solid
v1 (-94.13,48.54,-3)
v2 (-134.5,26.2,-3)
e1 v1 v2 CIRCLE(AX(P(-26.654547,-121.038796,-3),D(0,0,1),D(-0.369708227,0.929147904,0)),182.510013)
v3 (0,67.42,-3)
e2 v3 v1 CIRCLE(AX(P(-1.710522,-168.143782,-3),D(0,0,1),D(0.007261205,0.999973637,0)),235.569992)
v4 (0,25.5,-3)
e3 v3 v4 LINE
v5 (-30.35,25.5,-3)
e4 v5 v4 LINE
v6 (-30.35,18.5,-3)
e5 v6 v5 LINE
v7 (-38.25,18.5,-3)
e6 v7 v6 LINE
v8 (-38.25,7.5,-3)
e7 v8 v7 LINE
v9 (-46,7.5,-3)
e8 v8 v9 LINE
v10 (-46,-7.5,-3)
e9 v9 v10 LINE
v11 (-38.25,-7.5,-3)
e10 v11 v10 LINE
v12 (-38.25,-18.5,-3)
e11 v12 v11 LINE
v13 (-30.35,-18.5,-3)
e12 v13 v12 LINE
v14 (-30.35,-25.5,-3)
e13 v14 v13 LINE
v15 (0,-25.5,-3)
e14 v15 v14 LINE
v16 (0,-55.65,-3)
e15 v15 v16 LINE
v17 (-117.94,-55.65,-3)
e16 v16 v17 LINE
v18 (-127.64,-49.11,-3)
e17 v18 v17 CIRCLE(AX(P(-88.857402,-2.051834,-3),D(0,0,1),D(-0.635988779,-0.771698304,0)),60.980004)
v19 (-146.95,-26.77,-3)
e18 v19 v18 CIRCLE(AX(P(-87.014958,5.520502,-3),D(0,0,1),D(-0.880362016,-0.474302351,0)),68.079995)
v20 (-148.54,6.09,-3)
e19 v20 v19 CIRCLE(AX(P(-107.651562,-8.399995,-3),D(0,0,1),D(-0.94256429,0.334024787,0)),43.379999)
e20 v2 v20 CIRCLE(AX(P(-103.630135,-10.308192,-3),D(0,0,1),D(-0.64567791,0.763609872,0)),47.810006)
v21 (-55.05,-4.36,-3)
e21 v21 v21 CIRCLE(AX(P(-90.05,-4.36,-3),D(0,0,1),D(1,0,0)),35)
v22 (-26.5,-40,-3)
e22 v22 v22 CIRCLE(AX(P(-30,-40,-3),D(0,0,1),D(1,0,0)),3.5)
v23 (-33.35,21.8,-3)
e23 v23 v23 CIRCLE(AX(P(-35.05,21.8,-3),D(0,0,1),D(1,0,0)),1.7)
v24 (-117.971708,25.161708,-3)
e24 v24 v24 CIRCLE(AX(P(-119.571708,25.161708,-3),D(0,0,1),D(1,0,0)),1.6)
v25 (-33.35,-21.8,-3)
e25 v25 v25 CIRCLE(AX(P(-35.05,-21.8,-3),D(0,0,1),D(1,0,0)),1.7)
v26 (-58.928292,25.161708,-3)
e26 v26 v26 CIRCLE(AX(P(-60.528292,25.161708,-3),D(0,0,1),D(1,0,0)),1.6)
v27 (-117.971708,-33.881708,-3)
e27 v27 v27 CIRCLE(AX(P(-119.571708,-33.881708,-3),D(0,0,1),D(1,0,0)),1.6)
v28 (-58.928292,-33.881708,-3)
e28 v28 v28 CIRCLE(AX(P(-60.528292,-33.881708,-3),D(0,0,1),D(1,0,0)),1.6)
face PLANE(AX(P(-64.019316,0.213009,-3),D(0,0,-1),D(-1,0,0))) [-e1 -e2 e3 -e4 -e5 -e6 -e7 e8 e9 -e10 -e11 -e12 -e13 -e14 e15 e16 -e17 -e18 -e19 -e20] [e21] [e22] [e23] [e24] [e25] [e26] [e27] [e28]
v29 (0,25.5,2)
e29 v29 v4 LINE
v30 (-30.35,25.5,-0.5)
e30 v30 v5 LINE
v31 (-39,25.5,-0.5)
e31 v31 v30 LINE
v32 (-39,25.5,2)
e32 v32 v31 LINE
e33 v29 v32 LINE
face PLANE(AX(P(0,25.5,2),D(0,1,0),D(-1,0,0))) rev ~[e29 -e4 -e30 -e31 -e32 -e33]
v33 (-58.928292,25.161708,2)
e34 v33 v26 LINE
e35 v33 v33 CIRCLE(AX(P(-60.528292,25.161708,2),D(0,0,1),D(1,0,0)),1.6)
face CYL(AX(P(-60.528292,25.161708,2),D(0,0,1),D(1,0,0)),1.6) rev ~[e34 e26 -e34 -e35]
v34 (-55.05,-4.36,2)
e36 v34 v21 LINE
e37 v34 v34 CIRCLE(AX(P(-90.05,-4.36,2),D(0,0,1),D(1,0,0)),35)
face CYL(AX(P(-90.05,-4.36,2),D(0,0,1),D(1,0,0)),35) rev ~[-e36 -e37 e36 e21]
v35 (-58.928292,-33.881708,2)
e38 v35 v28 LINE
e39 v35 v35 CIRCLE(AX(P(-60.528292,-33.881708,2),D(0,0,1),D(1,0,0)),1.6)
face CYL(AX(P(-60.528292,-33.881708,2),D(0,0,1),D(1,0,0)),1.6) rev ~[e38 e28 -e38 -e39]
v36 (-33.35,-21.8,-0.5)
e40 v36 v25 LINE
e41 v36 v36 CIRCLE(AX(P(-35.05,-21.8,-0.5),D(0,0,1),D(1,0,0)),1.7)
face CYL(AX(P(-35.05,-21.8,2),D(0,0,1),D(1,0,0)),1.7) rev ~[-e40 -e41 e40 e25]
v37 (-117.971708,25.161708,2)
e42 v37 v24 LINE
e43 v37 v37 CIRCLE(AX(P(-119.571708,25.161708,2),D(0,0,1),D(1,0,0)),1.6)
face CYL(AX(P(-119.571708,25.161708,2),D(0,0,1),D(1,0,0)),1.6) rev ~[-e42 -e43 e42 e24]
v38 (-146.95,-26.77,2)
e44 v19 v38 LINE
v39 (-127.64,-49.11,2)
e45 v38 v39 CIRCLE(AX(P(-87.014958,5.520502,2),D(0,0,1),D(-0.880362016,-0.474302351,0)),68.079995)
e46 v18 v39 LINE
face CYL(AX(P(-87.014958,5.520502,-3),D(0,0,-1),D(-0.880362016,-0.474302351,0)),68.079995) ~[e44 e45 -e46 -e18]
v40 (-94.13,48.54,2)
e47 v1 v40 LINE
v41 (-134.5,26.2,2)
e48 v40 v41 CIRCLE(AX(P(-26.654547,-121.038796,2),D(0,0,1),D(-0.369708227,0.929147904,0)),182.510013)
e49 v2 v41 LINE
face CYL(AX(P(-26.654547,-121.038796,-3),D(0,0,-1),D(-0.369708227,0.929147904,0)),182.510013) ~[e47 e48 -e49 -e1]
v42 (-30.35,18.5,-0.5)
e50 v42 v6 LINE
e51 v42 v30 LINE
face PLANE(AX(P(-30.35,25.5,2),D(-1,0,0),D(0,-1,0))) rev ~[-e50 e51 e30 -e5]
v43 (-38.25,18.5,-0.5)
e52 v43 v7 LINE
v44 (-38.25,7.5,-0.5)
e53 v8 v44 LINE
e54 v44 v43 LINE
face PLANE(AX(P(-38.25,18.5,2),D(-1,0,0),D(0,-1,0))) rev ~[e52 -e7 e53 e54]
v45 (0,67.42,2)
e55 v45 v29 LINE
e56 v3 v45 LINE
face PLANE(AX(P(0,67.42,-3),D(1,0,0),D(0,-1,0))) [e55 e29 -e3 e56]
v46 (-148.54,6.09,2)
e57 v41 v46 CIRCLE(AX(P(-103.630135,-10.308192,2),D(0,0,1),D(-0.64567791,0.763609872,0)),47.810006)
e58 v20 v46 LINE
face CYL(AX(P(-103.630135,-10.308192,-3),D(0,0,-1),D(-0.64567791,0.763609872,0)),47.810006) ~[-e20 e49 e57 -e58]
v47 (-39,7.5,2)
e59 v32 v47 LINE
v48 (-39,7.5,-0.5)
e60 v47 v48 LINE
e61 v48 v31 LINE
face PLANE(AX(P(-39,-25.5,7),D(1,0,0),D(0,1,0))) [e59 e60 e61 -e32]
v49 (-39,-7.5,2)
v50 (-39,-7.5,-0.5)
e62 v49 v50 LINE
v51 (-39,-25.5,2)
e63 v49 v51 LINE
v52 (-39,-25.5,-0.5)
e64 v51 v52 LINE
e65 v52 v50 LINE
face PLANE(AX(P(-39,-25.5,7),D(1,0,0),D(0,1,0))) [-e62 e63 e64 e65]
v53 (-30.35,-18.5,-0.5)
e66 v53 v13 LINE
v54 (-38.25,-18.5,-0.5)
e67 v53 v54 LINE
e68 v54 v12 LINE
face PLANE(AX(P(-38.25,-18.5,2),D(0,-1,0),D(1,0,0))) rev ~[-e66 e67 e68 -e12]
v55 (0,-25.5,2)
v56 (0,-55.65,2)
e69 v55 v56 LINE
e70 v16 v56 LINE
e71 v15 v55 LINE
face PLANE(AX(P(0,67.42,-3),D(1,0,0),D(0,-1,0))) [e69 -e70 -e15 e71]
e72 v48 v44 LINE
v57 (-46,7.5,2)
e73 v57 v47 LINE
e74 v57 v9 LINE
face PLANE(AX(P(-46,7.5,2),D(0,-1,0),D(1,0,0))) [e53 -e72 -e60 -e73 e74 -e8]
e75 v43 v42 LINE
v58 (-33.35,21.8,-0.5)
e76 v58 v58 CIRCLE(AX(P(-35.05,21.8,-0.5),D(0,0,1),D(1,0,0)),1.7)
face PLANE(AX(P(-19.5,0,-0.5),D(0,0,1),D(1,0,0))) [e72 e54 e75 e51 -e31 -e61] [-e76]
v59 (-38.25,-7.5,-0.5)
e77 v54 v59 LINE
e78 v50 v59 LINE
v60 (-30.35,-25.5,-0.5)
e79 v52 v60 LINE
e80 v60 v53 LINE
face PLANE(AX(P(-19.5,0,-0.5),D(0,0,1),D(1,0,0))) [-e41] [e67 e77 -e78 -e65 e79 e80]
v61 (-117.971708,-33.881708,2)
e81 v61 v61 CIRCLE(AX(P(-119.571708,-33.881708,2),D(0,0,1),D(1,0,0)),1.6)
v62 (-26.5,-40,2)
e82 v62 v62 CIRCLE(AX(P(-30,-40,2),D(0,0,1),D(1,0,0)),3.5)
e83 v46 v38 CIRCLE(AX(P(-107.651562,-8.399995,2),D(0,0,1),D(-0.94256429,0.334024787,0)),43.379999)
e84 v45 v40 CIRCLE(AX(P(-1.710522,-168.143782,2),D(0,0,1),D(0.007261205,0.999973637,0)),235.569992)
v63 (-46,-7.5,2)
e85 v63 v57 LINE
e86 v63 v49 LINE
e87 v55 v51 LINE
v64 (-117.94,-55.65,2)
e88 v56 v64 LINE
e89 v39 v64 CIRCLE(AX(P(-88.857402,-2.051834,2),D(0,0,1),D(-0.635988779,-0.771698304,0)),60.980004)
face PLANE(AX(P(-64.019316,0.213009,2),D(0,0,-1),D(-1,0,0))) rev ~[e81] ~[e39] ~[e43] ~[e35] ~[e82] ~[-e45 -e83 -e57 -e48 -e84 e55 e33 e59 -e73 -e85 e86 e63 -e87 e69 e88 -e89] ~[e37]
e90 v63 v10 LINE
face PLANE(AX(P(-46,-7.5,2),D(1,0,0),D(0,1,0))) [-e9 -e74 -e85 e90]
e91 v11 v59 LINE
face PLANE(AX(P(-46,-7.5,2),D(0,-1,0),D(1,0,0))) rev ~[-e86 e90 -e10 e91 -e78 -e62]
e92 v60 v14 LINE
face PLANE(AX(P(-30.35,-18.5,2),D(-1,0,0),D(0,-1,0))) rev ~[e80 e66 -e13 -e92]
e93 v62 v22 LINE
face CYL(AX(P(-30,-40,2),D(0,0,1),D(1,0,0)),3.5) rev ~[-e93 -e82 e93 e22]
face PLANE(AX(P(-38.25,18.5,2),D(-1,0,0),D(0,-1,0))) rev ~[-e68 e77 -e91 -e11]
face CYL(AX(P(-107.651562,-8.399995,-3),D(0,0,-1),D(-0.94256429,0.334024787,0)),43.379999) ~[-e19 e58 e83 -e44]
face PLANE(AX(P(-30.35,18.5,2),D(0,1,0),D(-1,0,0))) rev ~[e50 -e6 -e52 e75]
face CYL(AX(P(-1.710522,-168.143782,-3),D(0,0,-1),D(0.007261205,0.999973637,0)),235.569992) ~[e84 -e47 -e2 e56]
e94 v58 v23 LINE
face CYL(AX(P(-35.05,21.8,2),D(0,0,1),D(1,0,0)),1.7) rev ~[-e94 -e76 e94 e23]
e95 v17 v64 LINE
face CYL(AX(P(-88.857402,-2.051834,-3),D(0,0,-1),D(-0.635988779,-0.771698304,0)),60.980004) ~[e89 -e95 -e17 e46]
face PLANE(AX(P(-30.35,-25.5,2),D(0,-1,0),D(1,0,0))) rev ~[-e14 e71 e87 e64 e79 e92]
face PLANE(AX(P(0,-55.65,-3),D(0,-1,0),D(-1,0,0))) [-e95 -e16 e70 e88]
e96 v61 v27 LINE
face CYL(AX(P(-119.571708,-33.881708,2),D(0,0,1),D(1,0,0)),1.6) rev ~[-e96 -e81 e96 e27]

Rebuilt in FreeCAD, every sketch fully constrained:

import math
import FreeCAD as App
import Part
import Sketcher

V = App.Vector

doc = App.newDocument("Part")
body = doc.addObject("PartDesign::Body", "Body")

# Sketch on XY plane
sketch1 = body.newObject("Sketcher::SketchObject", "Sketch")
sketch1.AttachmentSupport = (doc.getObject("XY_Plane"), [""])
sketch1.MapMode = "FlatFace"
sketch1.addGeometry([
    Part.LineSegment(V(0, -56, 0), V(0, 67, 0)),  # 0
    Part.ArcOfCircle(Part.Circle(V(-2, -168, 0), V(0, 0, 1), 236), math.radians(90), math.radians(113)),  # 1
    Part.ArcOfCircle(Part.Circle(V(-27, -121, 0), V(0, 0, 1), 183), math.radians(111.7), math.radians(126.22)),  # 2
    Part.ArcOfCircle(Part.Circle(V(-104, -10, 0), V(0, 0, 1), 48), math.radians(130), math.radians(160)),  # 3
    Part.ArcOfCircle(Part.Circle(V(-108, -8, 0), V(0, 0, 1), 43), math.radians(160), math.radians(205)),  # 4
    Part.ArcOfCircle(Part.Circle(V(-87, 6, 0), V(0, 0, 1), 68), math.radians(-152), math.radians(-127)),  # 5
    Part.ArcOfCircle(Part.Circle(V(-89, -2, 0), V(0, 0, 1), 61), math.radians(-129.49), math.radians(-118.48)),  # 6
    Part.LineSegment(V(-118, -56, 0), V(0, -56, 0)),  # 7
], False)
sketch1.addConstraint([
    Sketcher.Constraint("Coincident", 0, 2, 1, 1),
    Sketcher.Constraint("Coincident", 1, 2, 2, 1),
    Sketcher.Constraint("Coincident", 2, 2, 3, 1),
    Sketcher.Constraint("Coincident", 3, 2, 4, 1),
    Sketcher.Constraint("Coincident", 4, 2, 5, 1),
    Sketcher.Constraint("Coincident", 5, 2, 6, 1),
    Sketcher.Constraint("Coincident", 6, 2, 7, 1),
    Sketcher.Constraint("Coincident", 7, 2, 0, 1),
    Sketcher.Constraint("Vertical", 0),
    Sketcher.Constraint("Horizontal", 7),
    Sketcher.Constraint("PointOnObject", 0, 2, -2),
    Sketcher.Constraint("Radius", 4, 43.379999),
    Sketcher.Constraint("DistanceX", 7, 1, 7, 2, 117.94),
    Sketcher.Constraint("DistanceY", 0, 1, 0, 2, 123.07),
    Sketcher.Constraint("DistanceX", 2, 2, -1, 1, 134.5),
    Sketcher.Constraint("DistanceY", -1, 1, 2, 2, 26.2),
    Sketcher.Constraint("DistanceX", 3, 2, 5, 2, 20.9),
    Sketcher.Constraint("DistanceY", 5, 2, 3, 2, 55.2),
    Sketcher.Constraint("DistanceX", 5, 2, 6, 2, 9.7),
    Sketcher.Constraint("DistanceY", -1, 1, 0, 2, 67.42),
    Sketcher.Constraint("DistanceX", 1, 2, -1, 1, 94.13),
    Sketcher.Constraint("DistanceY", -1, 1, 1, 2, 48.54),
    Sketcher.Constraint("DistanceY", -1, 1, 3, 2, 6.09),
    Sketcher.Constraint("DistanceX", 4, 2, -1, 1, 146.95),
    Sketcher.Constraint("DistanceY", 4, 2, -1, 1, 26.77),
    Sketcher.Constraint("Radius", 1, 235.569992),
    Sketcher.Constraint("Radius", 2, 182.510013),
    Sketcher.Constraint("Radius", 3, 47.810006),
    Sketcher.Constraint("Radius", 5, 68.079995),
    Sketcher.Constraint("Radius", 6, 60.980004),
])
pad1 = body.newObject("PartDesign::Pad", "Pad")
pad1.Profile = sketch1
pad1.Length = 5

# Sketch on XY plane
sketch2 = body.newObject("Sketcher::SketchObject", "Sketch001")
sketch2.AttachmentSupport = (doc.getObject("XY_Plane"), [""])
sketch2.MapMode = "FlatFace"
sketch2.AttachmentOffset = App.Placement(V(0, 0, 5), App.Rotation())
sketch2.addGeometry([
    Part.Circle(V(-90, -4.4, 0), V(0, 0, 1), 35),  # 0
    Part.Circle(V(-119.6, 25.2, 0), V(0, 0, 1), 1.6),  # 1
    Part.Circle(V(-119.6, -33.9, 0), V(0, 0, 1), 1.6),  # 2
    Part.Circle(V(-60.5, -33.9, 0), V(0, 0, 1), 1.6),  # 3
    Part.Circle(V(-60.5, 25.2, 0), V(0, 0, 1), 1.6),  # 4
], False)
sketch2.addConstraint([
    Sketcher.Constraint("Equal", 1, 2),
    Sketcher.Constraint("Equal", 2, 3),
    Sketcher.Constraint("Equal", 3, 4),
    Sketcher.Constraint("Horizontal", 2, 3, 3, 3),
    Sketcher.Constraint("Horizontal", 1, 3, 4, 3),
    Sketcher.Constraint("Vertical", 1, 3, 2, 3),
    Sketcher.Constraint("Vertical", 3, 3, 4, 3),
    Sketcher.Constraint("Diameter", 0, 70.0),
    Sketcher.Constraint("Diameter", 1, 3.2),
    Sketcher.Constraint("DistanceX", 0, 3, -1, 1, 90.05),
    Sketcher.Constraint("DistanceY", 0, 3, -1, 1, 4.36),
    Sketcher.Constraint("DistanceX", 1, 3, -1, 1, 119.571708),
    Sketcher.Constraint("DistanceY", -1, 1, 1, 3, 25.161708),
    Sketcher.Constraint("DistanceY", 2, 3, -1, 1, 33.881708),
    Sketcher.Constraint("DistanceX", 3, 3, -1, 1, 60.528292),
])
pocket1 = body.newObject("PartDesign::Pocket", "Pocket")
pocket1.Profile = sketch2
pocket1.Type = "ThroughAll"

# Sketch on XY plane
sketch3 = body.newObject("Sketcher::SketchObject", "Sketch002")
sketch3.AttachmentSupport = (doc.getObject("XY_Plane"), [""])
sketch3.MapMode = "FlatFace"
sketch3.AttachmentOffset = App.Placement(V(0, 0, 5), App.Rotation())
sketch3.addGeometry([
    Part.Circle(V(-30, -40, 0), V(0, 0, 1), 3.5),  # 0
    Part.Circle(V(-35, 21.8, 0), V(0, 0, 1), 1.7),  # 1
    Part.Circle(V(-35, -21.8, 0), V(0, 0, 1), 1.7),  # 2
    Part.LineSegment(V(0, 25.5, 0), V(-30.4, 25.5, 0)),  # 3
    Part.LineSegment(V(-30.4, 25.5, 0), V(-30.4, 18.5, 0)),  # 4
    Part.LineSegment(V(-30.4, 18.5, 0), V(-38.2, 18.5, 0)),  # 5
    Part.LineSegment(V(-38.2, 18.5, 0), V(-38.2, -18.5, 0)),  # 6
    Part.LineSegment(V(-38.2, -18.5, 0), V(-30.4, -18.5, 0)),  # 7
    Part.LineSegment(V(-30.4, -18.5, 0), V(-30.4, -25.5, 0)),  # 8
    Part.LineSegment(V(-30.4, -25.5, 0), V(0, -25.5, 0)),  # 9
    Part.LineSegment(V(0, -25.5, 0), V(0, 25.5, 0)),  # 10
], False)
sketch3.addConstraint([
    Sketcher.Constraint("Coincident", 3, 2, 4, 1),
    Sketcher.Constraint("Coincident", 4, 2, 5, 1),
    Sketcher.Constraint("Coincident", 5, 2, 6, 1),
    Sketcher.Constraint("Coincident", 6, 2, 7, 1),
    Sketcher.Constraint("Coincident", 7, 2, 8, 1),
    Sketcher.Constraint("Coincident", 8, 2, 9, 1),
    Sketcher.Constraint("Coincident", 9, 2, 10, 1),
    Sketcher.Constraint("Coincident", 10, 2, 3, 1),
    Sketcher.Constraint("Horizontal", 3),
    Sketcher.Constraint("Vertical", 4),
    Sketcher.Constraint("Horizontal", 5),
    Sketcher.Constraint("Vertical", 6),
    Sketcher.Constraint("Horizontal", 7),
    Sketcher.Constraint("Vertical", 8),
    Sketcher.Constraint("Horizontal", 9),
    Sketcher.Constraint("Vertical", 10),
    Sketcher.Constraint("Equal", 1, 2),
    Sketcher.Constraint("Symmetric", 9, 2, 10, 2, -1, 1),
    Sketcher.Constraint("Symmetric", 1, 3, 2, 3, -1),
    Sketcher.Constraint("Symmetric", 4, 2, 7, 2, -1),
    Sketcher.Constraint("Diameter", 0, 7.0),
    Sketcher.Constraint("Diameter", 1, 3.4),
    Sketcher.Constraint("DistanceY", 4, 2, 4, 1, 7.0),
    Sketcher.Constraint("DistanceY", 6, 2, 6, 1, 37.0),
    Sketcher.Constraint("DistanceX", 5, 2, 5, 1, 7.9),
    Sketcher.Constraint("DistanceX", 0, 3, -1, 1, 30.0),
    Sketcher.Constraint("DistanceY", 0, 3, -1, 1, 40.0),
    Sketcher.Constraint("DistanceX", 3, 2, 3, 1, 30.35),
    Sketcher.Constraint("DistanceY", -1, 1, 1, 3, 21.8),
    Sketcher.Constraint("DistanceX", 1, 3, 3, 2, 4.7),
])
pocket2 = body.newObject("PartDesign::Pocket", "Pocket001")
pocket2.Profile = sketch3
pocket2.Type = "ThroughAll"

# Sketch on XY plane
sketch4 = body.newObject("Sketcher::SketchObject", "Sketch003")
sketch4.AttachmentSupport = (doc.getObject("XY_Plane"), [""])
sketch4.MapMode = "FlatFace"
sketch4.AttachmentOffset = App.Placement(V(0, 0, 10), App.Rotation())
sketch4.addGeometry([
    Part.LineSegment(V(-39, 26, 0), V(-39, -26, 0)),
    Part.LineSegment(V(-39, -26, 0), V(0, -26, 0)),
    Part.LineSegment(V(0, -26, 0), V(0, 26, 0)),
    Part.LineSegment(V(0, 26, 0), V(-39, 26, 0)),
], False)
sketch4.addConstraint([
    Sketcher.Constraint("Coincident", 0, 2, 1, 1),
    Sketcher.Constraint("Coincident", 1, 2, 2, 1),
    Sketcher.Constraint("Coincident", 2, 2, 3, 1),
    Sketcher.Constraint("Coincident", 3, 2, 0, 1),
    Sketcher.Constraint("Vertical", 0),
    Sketcher.Constraint("Horizontal", 1),
    Sketcher.Constraint("Vertical", 2),
    Sketcher.Constraint("Horizontal", 3),
    Sketcher.Constraint("Symmetric", 1, 2, 2, 2, -1, 1),
    Sketcher.Constraint("DistanceX", 1, 1, 1, 2, 39.0),
    Sketcher.Constraint("DistanceY", 0, 2, 0, 1, 51.0),
])
pocket3 = body.newObject("PartDesign::Pocket", "Pocket002")
pocket3.Profile = sketch4
pocket3.Length = 7.5

# Sketch on XY plane
sketch5 = body.newObject("Sketcher::SketchObject", "Sketch004")
sketch5.AttachmentSupport = (doc.getObject("XY_Plane"), [""])
sketch5.MapMode = "FlatFace"
sketch5.AttachmentOffset = App.Placement(V(0, 0, 5), App.Rotation())
sketch5.addGeometry([
    Part.LineSegment(V(-46, 8, 0), V(-46, -8, 0)),
    Part.LineSegment(V(-46, -8, 0), V(-38, -8, 0)),
    Part.LineSegment(V(-38, -8, 0), V(-38, 8, 0)),
    Part.LineSegment(V(-38, 8, 0), V(-46, 8, 0)),
], False)
sketch5.addConstraint([
    Sketcher.Constraint("Coincident", 0, 2, 1, 1),
    Sketcher.Constraint("Coincident", 1, 2, 2, 1),
    Sketcher.Constraint("Coincident", 2, 2, 3, 1),
    Sketcher.Constraint("Coincident", 3, 2, 0, 1),
    Sketcher.Constraint("Vertical", 0),
    Sketcher.Constraint("Horizontal", 1),
    Sketcher.Constraint("Vertical", 2),
    Sketcher.Constraint("Horizontal", 3),
    Sketcher.Constraint("DistanceX", 1, 1, 1, 2, 8.0),
    Sketcher.Constraint("DistanceY", 0, 2, 0, 1, 15.0),
    Sketcher.Constraint("DistanceX", 0, 2, -1, 1, 46.0),
    Sketcher.Constraint("DistanceY", 0, 2, -1, 1, 7.5),
])
pocket4 = body.newObject("PartDesign::Pocket", "Pocket003")
pocket4.Profile = sketch5
pocket4.Type = "ThroughAll"
body2 = doc.addObject("PartDesign::Body", "Body001")
doc.recompute()

body.Placement = App.Placement(V(0, 0, -3), App.Rotation(V(0, 0, 1), 0))
boolean = body2.newObject("PartDesign::Boolean", "Boolean")
boolean.Type = "Fuse"
boolean.addObjects([body])

doc.recompute()
